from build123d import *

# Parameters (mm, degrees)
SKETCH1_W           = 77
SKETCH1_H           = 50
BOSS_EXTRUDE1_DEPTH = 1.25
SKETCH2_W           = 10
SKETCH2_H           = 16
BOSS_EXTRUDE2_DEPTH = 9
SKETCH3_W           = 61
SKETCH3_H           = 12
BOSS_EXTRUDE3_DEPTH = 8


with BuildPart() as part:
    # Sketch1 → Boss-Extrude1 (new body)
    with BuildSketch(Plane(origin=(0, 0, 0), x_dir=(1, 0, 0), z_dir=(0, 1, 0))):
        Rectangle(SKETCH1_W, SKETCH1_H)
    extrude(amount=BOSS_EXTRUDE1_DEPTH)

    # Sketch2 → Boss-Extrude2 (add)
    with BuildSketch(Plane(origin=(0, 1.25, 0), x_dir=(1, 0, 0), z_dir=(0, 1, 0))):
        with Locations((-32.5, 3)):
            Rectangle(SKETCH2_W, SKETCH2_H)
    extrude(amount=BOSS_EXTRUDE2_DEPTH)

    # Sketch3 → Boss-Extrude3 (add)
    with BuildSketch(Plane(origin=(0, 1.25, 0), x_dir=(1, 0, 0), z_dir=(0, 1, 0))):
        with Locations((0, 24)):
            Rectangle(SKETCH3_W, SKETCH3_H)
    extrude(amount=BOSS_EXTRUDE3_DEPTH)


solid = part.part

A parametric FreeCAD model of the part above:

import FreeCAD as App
import Part
import Sketcher
from FreeCAD import Vector

doc = App.newDocument("Part")
body = doc.addObject("PartDesign::Body", "Body")

# Sketch on XZ plane
sketch1 = doc.addObject("Sketcher::SketchObject", "Sketch")
body.addObject(sketch1)
sketch1.AttachmentSupport = (doc.XZ_Plane, [""])
sketch1.MapMode = "FlatFace"
sketch1.addGeometry(Part.LineSegment(Vector(-38, -25, 0), Vector(-38, 25, 0)), False)
sketch1.addGeometry(Part.LineSegment(Vector(-38, 25, 0), Vector(38, 25, 0)), False)
sketch1.addGeometry(Part.LineSegment(Vector(38, 25, 0), Vector(38, -25, 0)), False)
sketch1.addGeometry(Part.LineSegment(Vector(38, -25, 0), Vector(-38, -25, 0)), False)
sketch1.addConstraint(Sketcher.Constraint("Coincident", 0, 2, 1, 1))
sketch1.addConstraint(Sketcher.Constraint("Coincident", 1, 2, 2, 1))
sketch1.addConstraint(Sketcher.Constraint("Coincident", 2, 2, 3, 1))
sketch1.addConstraint(Sketcher.Constraint("Coincident", 3, 2, 0, 1))
sketch1.addConstraint(Sketcher.Constraint("Vertical", 0))
sketch1.addConstraint(Sketcher.Constraint("Horizontal", 1))
sketch1.addConstraint(Sketcher.Constraint("Vertical", 2))
sketch1.addConstraint(Sketcher.Constraint("Horizontal", 3))
sketch1.addConstraint(Sketcher.Constraint("Symmetric", 0, 2, 2, 2, -1, 1))
sketch1.addConstraint(Sketcher.Constraint("DistanceX", 1, 1, 1, 2, 77.0))
sketch1.addConstraint(Sketcher.Constraint("DistanceY", 0, 1, 0, 2, 50.0))
pad1 = doc.addObject("PartDesign::Pad", "Pad")
body.addObject(pad1)
pad1.Profile = sketch1
pad1.Length = 1.25
pad1.Reversed = True

# Sketch on XZ plane
sketch2 = doc.addObject("Sketcher::SketchObject", "Sketch001")
body.addObject(sketch2)
sketch2.AttachmentSupport = (doc.XZ_Plane, [""])
sketch2.MapMode = "FlatFace"
sketch2.AttachmentOffset = App.Placement(Vector(0, 0, -1.25), App.Rotation())
sketch2.addGeometry(Part.LineSegment(Vector(-38, -11, 0), Vector(-38, 5, 0)), False)
sketch2.addGeometry(Part.LineSegment(Vector(-38, 5, 0), Vector(-28, 5, 0)), False)
sketch2.addGeometry(Part.LineSegment(Vector(-28, 5, 0), Vector(-28, -11, 0)), False)
sketch2.addGeometry(Part.LineSegment(Vector(-28, -11, 0), Vector(-38, -11, 0)), False)
sketch2.addConstraint(Sketcher.Constraint("Coincident", 0, 2, 1, 1))
sketch2.addConstraint(Sketcher.Constraint("Coincident", 1, 2, 2, 1))
sketch2.addConstraint(Sketcher.Constraint("Coincident", 2, 2, 3, 1))
sketch2.addConstraint(Sketcher.Constraint("Coincident", 3, 2, 0, 1))
sketch2.addConstraint(Sketcher.Constraint("Vertical", 0))
sketch2.addConstraint(Sketcher.Constraint("Horizontal", 1))
sketch2.addConstraint(Sketcher.Constraint("Vertical", 2))
sketch2.addConstraint(Sketcher.Constraint("Horizontal", 3))
sketch2.addConstraint(Sketcher.Constraint("DistanceX", 1, 1, 1, 2, 10.0))
sketch2.addConstraint(Sketcher.Constraint("DistanceY", 0, 1, 0, 2, 16.0))
sketch2.addConstraint(Sketcher.Constraint("DistanceY", -1, 1, 0, 2, 5.0))
sketch2.addConstraint(Sketcher.Constraint("DistanceX", 0, 2, -1, 1, 37.5))
pad2 = doc.addObject("PartDesign::Pad", "Pad001")
body.addObject(pad2)
pad2.Profile = sketch2
pad2.Length = 9
pad2.Reversed = True

# Sketch on XZ plane
sketch3 = doc.addObject("Sketcher::SketchObject", "Sketch002")
body.addObject(sketch3)
sketch3.AttachmentSupport = (doc.XZ_Plane, [""])
sketch3.MapMode = "FlatFace"
sketch3.AttachmentOffset = App.Placement(Vector(0, 0, -1.25), App.Rotation())
sketch3.addGeometry(Part.LineSegment(Vector(-30, -30, 0), Vector(-30, -18, 0)), False)
sketch3.addGeometry(Part.LineSegment(Vector(-30, -18, 0), Vector(30, -18, 0)), False)
sketch3.addGeometry(Part.LineSegment(Vector(30, -18, 0), Vector(30, -30, 0)), False)
sketch3.addGeometry(Part.LineSegment(Vector(30, -30, 0), Vector(-30, -30, 0)), False)
sketch3.addConstraint(Sketcher.Constraint("Coincident", 0, 2, 1, 1))
sketch3.addConstraint(Sketcher.Constraint("Coincident", 1, 2, 2, 1))
sketch3.addConstraint(Sketcher.Constraint("Coincident", 2, 2, 3, 1))
sketch3.addConstraint(Sketcher.Constraint("Coincident", 3, 2, 0, 1))
sketch3.addConstraint(Sketcher.Constraint("Vertical", 0))
sketch3.addConstraint(Sketcher.Constraint("Horizontal", 1))
sketch3.addConstraint(Sketcher.Constraint("Vertical", 2))
sketch3.addConstraint(Sketcher.Constraint("Horizontal", 3))
sketch3.addConstraint(Sketcher.Constraint("DistanceX", 1, 1, 1, 2, 61.0))
sketch3.addConstraint(Sketcher.Constraint("DistanceY", 0, 1, 0, 2, 12.0))
sketch3.addConstraint(Sketcher.Constraint("DistanceY", 0, 2, -1, 1, 18.0))
sketch3.addConstraint(Sketcher.Constraint("DistanceX", 0, 2, -1, 1, 30.5))
pad3 = doc.addObject("PartDesign::Pad", "Pad002")
body.addObject(pad3)
pad3.Profile = sketch3
pad3.Length = 8
pad3.Reversed = True

doc.recompute()
